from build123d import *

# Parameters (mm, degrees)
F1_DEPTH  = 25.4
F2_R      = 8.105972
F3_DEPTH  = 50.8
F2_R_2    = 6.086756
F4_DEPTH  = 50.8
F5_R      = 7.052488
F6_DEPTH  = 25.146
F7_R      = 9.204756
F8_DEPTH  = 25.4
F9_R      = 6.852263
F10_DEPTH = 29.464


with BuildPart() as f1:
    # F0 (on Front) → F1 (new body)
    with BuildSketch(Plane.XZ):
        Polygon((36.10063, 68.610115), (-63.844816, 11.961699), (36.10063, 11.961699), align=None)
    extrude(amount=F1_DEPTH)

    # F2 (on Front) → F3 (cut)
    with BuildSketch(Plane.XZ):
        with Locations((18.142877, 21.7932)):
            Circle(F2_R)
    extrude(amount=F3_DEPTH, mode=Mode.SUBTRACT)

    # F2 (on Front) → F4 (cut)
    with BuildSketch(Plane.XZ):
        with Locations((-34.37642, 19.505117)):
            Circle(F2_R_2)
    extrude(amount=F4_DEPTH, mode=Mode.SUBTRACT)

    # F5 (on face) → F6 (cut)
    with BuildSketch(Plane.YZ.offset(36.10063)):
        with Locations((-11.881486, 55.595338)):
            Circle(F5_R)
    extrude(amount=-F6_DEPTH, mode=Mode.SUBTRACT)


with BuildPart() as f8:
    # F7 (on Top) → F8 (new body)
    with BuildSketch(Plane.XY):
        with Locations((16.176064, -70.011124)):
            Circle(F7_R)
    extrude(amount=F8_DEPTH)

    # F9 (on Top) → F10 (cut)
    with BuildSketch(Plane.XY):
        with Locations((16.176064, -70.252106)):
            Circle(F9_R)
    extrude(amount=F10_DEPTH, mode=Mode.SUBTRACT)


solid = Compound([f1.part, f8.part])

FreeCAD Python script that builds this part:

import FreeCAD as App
import Part
import Sketcher
Q = App.Units.Quantity

doc = App.newDocument("Part")
body = doc.addObject("PartDesign::Body", "Body")

sketch1 = body.newObject("Sketcher::SketchObject", "Sketch")
sketch1.AttachmentSupport = (doc.getObject("XZ_Plane"), [""])
sketch1.MapMode = "FlatFace"
sketch1.addGeometry(Part.LineSegment(App.Vector(36, 69, 0), App.Vector(-64, 12, 0)), False)
sketch1.addGeometry(Part.LineSegment(App.Vector(-64, 12, 0), App.Vector(36, 12, 0)), False)
sketch1.addGeometry(Part.LineSegment(App.Vector(36, 12, 0), App.Vector(36, 69, 0)), False)
sketch1.addConstraint(Sketcher.Constraint("Coincident", 0, 2, 1, 1))
sketch1.addConstraint(Sketcher.Constraint("Coincident", 1, 2, 2, 1))
sketch1.addConstraint(Sketcher.Constraint("Coincident", 2, 2, 0, 1))
sketch1.addConstraint(Sketcher.Constraint("Horizontal", 1))
sketch1.addConstraint(Sketcher.Constraint("Vertical", 2))
sketch1.addConstraint(Sketcher.Constraint("DistanceY", -1, 1, 0, 2, 11.961699))
sketch1.addConstraint(Sketcher.Constraint("DistanceX", 1, 1, 1, 2, 99.945446))
sketch1.addConstraint(Sketcher.Constraint("DistanceY", 2, 1, 2, 2, 56.648416))
sketch1.addConstraint(Sketcher.Constraint("DistanceX", -1, 1, 1, 2, 36.10063))
pad1 = body.newObject("PartDesign::Pad", "Pad")
pad1.Profile = sketch1
pad1.Length = Q("1 in")

sketch2 = body.newObject("Sketcher::SketchObject", "Sketch001")
sketch2.AttachmentSupport = (doc.getObject("XZ_Plane"), [""])
sketch2.MapMode = "FlatFace"
sketch2.addGeometry(Part.Circle(App.Vector(18, 22, 0), App.Vector(0, 0, 1), 8), False)
sketch2.addConstraint(Sketcher.Constraint("DistanceY", -1, 1, 0, 3, Q("0.858 in")))
sketch2.addConstraint(Sketcher.Constraint("Diameter", 0, 16.211944))
sketch2.addConstraint(Sketcher.Constraint("DistanceX", -1, 1, 0, 3, 18.142877))
pocket1 = body.newObject("PartDesign::Pocket", "Pocket")
pocket1.Profile = sketch2
pocket1.Length = Q("2 in")
pocket1.Reversed = True

sketch3 = body.newObject("Sketcher::SketchObject", "Sketch002")
sketch3.AttachmentSupport = (doc.getObject("XZ_Plane"), [""])
sketch3.MapMode = "FlatFace"
sketch3.addGeometry(Part.Circle(App.Vector(-34, 20, 0), App.Vector(0, 0, 1), 6), False)
sketch3.addConstraint(Sketcher.Constraint("Diameter", 0, 12.173512))
sketch3.addConstraint(Sketcher.Constraint("DistanceX", 0, 3, -1, 1, 34.37642))
sketch3.addConstraint(Sketcher.Constraint("DistanceY", -1, 1, 0, 3, 19.505117))
pocket2 = body.newObject("PartDesign::Pocket", "Pocket001")
pocket2.Profile = sketch3
pocket2.Length = Q("2 in")
pocket2.Reversed = True

sketch4 = body.newObject("Sketcher::SketchObject", "Sketch003")
sketch4.AttachmentSupport = (doc.getObject("YZ_Plane"), [""])
sketch4.MapMode = "FlatFace"
sketch4.AttachmentOffset = App.Placement(App.Vector(0, 0, 36.10063), App.Rotation())
sketch4.addGeometry(Part.Circle(App.Vector(-12, 56, 0), App.Vector(0, 0, 1), 7), False)
sketch4.addConstraint(Sketcher.Constraint("Diameter", 0, 14.104976))
sketch4.addConstraint(Sketcher.Constraint("DistanceX", 0, 3, -1, 1, 11.881486))
sketch4.addConstraint(Sketcher.Constraint("DistanceY", -1, 1, 0, 3, 55.595338))
pocket3 = body.newObject("PartDesign::Pocket", "Pocket002")
pocket3.Profile = sketch4
pocket3.Length = Q("0.99 in")
body2 = doc.addObject("PartDesign::Body", "Body001")

sketch5 = body2.newObject("Sketcher::SketchObject", "Sketch004")
sketch5.AttachmentSupport = (doc.getObject("XY_Plane001"), [""])
sketch5.MapMode = "FlatFace"
sketch5.addGeometry(Part.Circle(App.Vector(16, -70, 0), App.Vector(0, 0, 1), 9), False)
sketch5.addConstraint(Sketcher.Constraint("Diameter", 0, 18.409512))
sketch5.addConstraint(Sketcher.Constraint("DistanceX", -1, 1, 0, 3, 16.176064))
sketch5.addConstraint(Sketcher.Constraint("DistanceY", 0, 3, -1, 1, 70.011124))
pad2 = body2.newObject("PartDesign::Pad", "Pad001")
pad2.Profile = sketch5
pad2.Length = Q("1 in")

sketch6 = body2.newObject("Sketcher::SketchObject", "Sketch005")
sketch6.AttachmentSupport = (doc.getObject("XY_Plane001"), [""])
sketch6.MapMode = "FlatFace"
sketch6.addGeometry(Part.Circle(App.Vector(16, -70, 0), App.Vector(0, 0, 1), 7), False)
sketch6.addConstraint(Sketcher.Constraint("Diameter", 0, 13.704526))
sketch6.addConstraint(Sketcher.Constraint("DistanceX", -1, 1, 0, 3, 16.176064))
sketch6.addConstraint(Sketcher.Constraint("DistanceY", 0, 3, -1, 1, 70.252106))
pocket4 = body2.newObject("PartDesign::Pocket", "Pocket003")
pocket4.Profile = sketch6
pocket4.Length = Q("1.16 in")
pocket4.Reversed = True

doc.recompute()
